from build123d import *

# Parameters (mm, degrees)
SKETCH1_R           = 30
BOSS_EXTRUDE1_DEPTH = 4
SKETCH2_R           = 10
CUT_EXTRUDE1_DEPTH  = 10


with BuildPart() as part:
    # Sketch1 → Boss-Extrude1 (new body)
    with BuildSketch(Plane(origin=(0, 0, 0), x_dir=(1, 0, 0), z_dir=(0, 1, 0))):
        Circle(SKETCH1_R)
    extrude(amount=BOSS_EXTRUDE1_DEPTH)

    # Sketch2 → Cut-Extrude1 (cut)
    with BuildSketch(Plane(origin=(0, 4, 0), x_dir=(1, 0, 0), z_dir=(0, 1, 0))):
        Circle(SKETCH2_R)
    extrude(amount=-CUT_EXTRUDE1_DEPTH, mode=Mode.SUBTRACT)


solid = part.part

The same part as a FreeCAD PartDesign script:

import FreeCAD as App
import Part
import Sketcher

V = App.Vector
Q = App.Units.Quantity

doc = App.newDocument("Part")
body = doc.addObject("PartDesign::Body", "Body")

sketch1 = body.newObject("Sketcher::SketchObject", "Sketch")
sketch1.AttachmentSupport = (doc.getObject("XZ_Plane"), [""])
sketch1.MapMode = "FlatFace"
sketch1.addGeometry(Part.Circle(V(0, 0, 0), V(0, 0, 1), 30), False)
sketch1.addConstraint([
    Sketcher.Constraint("Coincident", 0, 3, -1, 1),
    Sketcher.Constraint("Diameter", 0, Q("60 mm")),
])
pad1 = body.newObject("PartDesign::Pad", "Pad")
pad1.Profile = sketch1
pad1.Length = 4
pad1.Reversed = True

sketch2 = body.newObject("Sketcher::SketchObject", "Sketch001")
sketch2.AttachmentSupport = (doc.getObject("XZ_Plane"), [""])
sketch2.MapMode = "FlatFace"
sketch2.AttachmentOffset = App.Placement(V(0, 0, -4), App.Rotation())
sketch2.addGeometry(Part.Circle(V(0, 0, 0), V(0, 0, 1), 10), False)
sketch2.addConstraint([
    Sketcher.Constraint("Coincident", 0, 3, -1, 1),
    Sketcher.Constraint("Diameter", 0, Q("20 mm")),
])
pocket1 = body.newObject("PartDesign::Pocket", "Pocket")
pocket1.Profile = sketch2
pocket1.Length = 10
pocket1.Reversed = True

doc.recompute()
